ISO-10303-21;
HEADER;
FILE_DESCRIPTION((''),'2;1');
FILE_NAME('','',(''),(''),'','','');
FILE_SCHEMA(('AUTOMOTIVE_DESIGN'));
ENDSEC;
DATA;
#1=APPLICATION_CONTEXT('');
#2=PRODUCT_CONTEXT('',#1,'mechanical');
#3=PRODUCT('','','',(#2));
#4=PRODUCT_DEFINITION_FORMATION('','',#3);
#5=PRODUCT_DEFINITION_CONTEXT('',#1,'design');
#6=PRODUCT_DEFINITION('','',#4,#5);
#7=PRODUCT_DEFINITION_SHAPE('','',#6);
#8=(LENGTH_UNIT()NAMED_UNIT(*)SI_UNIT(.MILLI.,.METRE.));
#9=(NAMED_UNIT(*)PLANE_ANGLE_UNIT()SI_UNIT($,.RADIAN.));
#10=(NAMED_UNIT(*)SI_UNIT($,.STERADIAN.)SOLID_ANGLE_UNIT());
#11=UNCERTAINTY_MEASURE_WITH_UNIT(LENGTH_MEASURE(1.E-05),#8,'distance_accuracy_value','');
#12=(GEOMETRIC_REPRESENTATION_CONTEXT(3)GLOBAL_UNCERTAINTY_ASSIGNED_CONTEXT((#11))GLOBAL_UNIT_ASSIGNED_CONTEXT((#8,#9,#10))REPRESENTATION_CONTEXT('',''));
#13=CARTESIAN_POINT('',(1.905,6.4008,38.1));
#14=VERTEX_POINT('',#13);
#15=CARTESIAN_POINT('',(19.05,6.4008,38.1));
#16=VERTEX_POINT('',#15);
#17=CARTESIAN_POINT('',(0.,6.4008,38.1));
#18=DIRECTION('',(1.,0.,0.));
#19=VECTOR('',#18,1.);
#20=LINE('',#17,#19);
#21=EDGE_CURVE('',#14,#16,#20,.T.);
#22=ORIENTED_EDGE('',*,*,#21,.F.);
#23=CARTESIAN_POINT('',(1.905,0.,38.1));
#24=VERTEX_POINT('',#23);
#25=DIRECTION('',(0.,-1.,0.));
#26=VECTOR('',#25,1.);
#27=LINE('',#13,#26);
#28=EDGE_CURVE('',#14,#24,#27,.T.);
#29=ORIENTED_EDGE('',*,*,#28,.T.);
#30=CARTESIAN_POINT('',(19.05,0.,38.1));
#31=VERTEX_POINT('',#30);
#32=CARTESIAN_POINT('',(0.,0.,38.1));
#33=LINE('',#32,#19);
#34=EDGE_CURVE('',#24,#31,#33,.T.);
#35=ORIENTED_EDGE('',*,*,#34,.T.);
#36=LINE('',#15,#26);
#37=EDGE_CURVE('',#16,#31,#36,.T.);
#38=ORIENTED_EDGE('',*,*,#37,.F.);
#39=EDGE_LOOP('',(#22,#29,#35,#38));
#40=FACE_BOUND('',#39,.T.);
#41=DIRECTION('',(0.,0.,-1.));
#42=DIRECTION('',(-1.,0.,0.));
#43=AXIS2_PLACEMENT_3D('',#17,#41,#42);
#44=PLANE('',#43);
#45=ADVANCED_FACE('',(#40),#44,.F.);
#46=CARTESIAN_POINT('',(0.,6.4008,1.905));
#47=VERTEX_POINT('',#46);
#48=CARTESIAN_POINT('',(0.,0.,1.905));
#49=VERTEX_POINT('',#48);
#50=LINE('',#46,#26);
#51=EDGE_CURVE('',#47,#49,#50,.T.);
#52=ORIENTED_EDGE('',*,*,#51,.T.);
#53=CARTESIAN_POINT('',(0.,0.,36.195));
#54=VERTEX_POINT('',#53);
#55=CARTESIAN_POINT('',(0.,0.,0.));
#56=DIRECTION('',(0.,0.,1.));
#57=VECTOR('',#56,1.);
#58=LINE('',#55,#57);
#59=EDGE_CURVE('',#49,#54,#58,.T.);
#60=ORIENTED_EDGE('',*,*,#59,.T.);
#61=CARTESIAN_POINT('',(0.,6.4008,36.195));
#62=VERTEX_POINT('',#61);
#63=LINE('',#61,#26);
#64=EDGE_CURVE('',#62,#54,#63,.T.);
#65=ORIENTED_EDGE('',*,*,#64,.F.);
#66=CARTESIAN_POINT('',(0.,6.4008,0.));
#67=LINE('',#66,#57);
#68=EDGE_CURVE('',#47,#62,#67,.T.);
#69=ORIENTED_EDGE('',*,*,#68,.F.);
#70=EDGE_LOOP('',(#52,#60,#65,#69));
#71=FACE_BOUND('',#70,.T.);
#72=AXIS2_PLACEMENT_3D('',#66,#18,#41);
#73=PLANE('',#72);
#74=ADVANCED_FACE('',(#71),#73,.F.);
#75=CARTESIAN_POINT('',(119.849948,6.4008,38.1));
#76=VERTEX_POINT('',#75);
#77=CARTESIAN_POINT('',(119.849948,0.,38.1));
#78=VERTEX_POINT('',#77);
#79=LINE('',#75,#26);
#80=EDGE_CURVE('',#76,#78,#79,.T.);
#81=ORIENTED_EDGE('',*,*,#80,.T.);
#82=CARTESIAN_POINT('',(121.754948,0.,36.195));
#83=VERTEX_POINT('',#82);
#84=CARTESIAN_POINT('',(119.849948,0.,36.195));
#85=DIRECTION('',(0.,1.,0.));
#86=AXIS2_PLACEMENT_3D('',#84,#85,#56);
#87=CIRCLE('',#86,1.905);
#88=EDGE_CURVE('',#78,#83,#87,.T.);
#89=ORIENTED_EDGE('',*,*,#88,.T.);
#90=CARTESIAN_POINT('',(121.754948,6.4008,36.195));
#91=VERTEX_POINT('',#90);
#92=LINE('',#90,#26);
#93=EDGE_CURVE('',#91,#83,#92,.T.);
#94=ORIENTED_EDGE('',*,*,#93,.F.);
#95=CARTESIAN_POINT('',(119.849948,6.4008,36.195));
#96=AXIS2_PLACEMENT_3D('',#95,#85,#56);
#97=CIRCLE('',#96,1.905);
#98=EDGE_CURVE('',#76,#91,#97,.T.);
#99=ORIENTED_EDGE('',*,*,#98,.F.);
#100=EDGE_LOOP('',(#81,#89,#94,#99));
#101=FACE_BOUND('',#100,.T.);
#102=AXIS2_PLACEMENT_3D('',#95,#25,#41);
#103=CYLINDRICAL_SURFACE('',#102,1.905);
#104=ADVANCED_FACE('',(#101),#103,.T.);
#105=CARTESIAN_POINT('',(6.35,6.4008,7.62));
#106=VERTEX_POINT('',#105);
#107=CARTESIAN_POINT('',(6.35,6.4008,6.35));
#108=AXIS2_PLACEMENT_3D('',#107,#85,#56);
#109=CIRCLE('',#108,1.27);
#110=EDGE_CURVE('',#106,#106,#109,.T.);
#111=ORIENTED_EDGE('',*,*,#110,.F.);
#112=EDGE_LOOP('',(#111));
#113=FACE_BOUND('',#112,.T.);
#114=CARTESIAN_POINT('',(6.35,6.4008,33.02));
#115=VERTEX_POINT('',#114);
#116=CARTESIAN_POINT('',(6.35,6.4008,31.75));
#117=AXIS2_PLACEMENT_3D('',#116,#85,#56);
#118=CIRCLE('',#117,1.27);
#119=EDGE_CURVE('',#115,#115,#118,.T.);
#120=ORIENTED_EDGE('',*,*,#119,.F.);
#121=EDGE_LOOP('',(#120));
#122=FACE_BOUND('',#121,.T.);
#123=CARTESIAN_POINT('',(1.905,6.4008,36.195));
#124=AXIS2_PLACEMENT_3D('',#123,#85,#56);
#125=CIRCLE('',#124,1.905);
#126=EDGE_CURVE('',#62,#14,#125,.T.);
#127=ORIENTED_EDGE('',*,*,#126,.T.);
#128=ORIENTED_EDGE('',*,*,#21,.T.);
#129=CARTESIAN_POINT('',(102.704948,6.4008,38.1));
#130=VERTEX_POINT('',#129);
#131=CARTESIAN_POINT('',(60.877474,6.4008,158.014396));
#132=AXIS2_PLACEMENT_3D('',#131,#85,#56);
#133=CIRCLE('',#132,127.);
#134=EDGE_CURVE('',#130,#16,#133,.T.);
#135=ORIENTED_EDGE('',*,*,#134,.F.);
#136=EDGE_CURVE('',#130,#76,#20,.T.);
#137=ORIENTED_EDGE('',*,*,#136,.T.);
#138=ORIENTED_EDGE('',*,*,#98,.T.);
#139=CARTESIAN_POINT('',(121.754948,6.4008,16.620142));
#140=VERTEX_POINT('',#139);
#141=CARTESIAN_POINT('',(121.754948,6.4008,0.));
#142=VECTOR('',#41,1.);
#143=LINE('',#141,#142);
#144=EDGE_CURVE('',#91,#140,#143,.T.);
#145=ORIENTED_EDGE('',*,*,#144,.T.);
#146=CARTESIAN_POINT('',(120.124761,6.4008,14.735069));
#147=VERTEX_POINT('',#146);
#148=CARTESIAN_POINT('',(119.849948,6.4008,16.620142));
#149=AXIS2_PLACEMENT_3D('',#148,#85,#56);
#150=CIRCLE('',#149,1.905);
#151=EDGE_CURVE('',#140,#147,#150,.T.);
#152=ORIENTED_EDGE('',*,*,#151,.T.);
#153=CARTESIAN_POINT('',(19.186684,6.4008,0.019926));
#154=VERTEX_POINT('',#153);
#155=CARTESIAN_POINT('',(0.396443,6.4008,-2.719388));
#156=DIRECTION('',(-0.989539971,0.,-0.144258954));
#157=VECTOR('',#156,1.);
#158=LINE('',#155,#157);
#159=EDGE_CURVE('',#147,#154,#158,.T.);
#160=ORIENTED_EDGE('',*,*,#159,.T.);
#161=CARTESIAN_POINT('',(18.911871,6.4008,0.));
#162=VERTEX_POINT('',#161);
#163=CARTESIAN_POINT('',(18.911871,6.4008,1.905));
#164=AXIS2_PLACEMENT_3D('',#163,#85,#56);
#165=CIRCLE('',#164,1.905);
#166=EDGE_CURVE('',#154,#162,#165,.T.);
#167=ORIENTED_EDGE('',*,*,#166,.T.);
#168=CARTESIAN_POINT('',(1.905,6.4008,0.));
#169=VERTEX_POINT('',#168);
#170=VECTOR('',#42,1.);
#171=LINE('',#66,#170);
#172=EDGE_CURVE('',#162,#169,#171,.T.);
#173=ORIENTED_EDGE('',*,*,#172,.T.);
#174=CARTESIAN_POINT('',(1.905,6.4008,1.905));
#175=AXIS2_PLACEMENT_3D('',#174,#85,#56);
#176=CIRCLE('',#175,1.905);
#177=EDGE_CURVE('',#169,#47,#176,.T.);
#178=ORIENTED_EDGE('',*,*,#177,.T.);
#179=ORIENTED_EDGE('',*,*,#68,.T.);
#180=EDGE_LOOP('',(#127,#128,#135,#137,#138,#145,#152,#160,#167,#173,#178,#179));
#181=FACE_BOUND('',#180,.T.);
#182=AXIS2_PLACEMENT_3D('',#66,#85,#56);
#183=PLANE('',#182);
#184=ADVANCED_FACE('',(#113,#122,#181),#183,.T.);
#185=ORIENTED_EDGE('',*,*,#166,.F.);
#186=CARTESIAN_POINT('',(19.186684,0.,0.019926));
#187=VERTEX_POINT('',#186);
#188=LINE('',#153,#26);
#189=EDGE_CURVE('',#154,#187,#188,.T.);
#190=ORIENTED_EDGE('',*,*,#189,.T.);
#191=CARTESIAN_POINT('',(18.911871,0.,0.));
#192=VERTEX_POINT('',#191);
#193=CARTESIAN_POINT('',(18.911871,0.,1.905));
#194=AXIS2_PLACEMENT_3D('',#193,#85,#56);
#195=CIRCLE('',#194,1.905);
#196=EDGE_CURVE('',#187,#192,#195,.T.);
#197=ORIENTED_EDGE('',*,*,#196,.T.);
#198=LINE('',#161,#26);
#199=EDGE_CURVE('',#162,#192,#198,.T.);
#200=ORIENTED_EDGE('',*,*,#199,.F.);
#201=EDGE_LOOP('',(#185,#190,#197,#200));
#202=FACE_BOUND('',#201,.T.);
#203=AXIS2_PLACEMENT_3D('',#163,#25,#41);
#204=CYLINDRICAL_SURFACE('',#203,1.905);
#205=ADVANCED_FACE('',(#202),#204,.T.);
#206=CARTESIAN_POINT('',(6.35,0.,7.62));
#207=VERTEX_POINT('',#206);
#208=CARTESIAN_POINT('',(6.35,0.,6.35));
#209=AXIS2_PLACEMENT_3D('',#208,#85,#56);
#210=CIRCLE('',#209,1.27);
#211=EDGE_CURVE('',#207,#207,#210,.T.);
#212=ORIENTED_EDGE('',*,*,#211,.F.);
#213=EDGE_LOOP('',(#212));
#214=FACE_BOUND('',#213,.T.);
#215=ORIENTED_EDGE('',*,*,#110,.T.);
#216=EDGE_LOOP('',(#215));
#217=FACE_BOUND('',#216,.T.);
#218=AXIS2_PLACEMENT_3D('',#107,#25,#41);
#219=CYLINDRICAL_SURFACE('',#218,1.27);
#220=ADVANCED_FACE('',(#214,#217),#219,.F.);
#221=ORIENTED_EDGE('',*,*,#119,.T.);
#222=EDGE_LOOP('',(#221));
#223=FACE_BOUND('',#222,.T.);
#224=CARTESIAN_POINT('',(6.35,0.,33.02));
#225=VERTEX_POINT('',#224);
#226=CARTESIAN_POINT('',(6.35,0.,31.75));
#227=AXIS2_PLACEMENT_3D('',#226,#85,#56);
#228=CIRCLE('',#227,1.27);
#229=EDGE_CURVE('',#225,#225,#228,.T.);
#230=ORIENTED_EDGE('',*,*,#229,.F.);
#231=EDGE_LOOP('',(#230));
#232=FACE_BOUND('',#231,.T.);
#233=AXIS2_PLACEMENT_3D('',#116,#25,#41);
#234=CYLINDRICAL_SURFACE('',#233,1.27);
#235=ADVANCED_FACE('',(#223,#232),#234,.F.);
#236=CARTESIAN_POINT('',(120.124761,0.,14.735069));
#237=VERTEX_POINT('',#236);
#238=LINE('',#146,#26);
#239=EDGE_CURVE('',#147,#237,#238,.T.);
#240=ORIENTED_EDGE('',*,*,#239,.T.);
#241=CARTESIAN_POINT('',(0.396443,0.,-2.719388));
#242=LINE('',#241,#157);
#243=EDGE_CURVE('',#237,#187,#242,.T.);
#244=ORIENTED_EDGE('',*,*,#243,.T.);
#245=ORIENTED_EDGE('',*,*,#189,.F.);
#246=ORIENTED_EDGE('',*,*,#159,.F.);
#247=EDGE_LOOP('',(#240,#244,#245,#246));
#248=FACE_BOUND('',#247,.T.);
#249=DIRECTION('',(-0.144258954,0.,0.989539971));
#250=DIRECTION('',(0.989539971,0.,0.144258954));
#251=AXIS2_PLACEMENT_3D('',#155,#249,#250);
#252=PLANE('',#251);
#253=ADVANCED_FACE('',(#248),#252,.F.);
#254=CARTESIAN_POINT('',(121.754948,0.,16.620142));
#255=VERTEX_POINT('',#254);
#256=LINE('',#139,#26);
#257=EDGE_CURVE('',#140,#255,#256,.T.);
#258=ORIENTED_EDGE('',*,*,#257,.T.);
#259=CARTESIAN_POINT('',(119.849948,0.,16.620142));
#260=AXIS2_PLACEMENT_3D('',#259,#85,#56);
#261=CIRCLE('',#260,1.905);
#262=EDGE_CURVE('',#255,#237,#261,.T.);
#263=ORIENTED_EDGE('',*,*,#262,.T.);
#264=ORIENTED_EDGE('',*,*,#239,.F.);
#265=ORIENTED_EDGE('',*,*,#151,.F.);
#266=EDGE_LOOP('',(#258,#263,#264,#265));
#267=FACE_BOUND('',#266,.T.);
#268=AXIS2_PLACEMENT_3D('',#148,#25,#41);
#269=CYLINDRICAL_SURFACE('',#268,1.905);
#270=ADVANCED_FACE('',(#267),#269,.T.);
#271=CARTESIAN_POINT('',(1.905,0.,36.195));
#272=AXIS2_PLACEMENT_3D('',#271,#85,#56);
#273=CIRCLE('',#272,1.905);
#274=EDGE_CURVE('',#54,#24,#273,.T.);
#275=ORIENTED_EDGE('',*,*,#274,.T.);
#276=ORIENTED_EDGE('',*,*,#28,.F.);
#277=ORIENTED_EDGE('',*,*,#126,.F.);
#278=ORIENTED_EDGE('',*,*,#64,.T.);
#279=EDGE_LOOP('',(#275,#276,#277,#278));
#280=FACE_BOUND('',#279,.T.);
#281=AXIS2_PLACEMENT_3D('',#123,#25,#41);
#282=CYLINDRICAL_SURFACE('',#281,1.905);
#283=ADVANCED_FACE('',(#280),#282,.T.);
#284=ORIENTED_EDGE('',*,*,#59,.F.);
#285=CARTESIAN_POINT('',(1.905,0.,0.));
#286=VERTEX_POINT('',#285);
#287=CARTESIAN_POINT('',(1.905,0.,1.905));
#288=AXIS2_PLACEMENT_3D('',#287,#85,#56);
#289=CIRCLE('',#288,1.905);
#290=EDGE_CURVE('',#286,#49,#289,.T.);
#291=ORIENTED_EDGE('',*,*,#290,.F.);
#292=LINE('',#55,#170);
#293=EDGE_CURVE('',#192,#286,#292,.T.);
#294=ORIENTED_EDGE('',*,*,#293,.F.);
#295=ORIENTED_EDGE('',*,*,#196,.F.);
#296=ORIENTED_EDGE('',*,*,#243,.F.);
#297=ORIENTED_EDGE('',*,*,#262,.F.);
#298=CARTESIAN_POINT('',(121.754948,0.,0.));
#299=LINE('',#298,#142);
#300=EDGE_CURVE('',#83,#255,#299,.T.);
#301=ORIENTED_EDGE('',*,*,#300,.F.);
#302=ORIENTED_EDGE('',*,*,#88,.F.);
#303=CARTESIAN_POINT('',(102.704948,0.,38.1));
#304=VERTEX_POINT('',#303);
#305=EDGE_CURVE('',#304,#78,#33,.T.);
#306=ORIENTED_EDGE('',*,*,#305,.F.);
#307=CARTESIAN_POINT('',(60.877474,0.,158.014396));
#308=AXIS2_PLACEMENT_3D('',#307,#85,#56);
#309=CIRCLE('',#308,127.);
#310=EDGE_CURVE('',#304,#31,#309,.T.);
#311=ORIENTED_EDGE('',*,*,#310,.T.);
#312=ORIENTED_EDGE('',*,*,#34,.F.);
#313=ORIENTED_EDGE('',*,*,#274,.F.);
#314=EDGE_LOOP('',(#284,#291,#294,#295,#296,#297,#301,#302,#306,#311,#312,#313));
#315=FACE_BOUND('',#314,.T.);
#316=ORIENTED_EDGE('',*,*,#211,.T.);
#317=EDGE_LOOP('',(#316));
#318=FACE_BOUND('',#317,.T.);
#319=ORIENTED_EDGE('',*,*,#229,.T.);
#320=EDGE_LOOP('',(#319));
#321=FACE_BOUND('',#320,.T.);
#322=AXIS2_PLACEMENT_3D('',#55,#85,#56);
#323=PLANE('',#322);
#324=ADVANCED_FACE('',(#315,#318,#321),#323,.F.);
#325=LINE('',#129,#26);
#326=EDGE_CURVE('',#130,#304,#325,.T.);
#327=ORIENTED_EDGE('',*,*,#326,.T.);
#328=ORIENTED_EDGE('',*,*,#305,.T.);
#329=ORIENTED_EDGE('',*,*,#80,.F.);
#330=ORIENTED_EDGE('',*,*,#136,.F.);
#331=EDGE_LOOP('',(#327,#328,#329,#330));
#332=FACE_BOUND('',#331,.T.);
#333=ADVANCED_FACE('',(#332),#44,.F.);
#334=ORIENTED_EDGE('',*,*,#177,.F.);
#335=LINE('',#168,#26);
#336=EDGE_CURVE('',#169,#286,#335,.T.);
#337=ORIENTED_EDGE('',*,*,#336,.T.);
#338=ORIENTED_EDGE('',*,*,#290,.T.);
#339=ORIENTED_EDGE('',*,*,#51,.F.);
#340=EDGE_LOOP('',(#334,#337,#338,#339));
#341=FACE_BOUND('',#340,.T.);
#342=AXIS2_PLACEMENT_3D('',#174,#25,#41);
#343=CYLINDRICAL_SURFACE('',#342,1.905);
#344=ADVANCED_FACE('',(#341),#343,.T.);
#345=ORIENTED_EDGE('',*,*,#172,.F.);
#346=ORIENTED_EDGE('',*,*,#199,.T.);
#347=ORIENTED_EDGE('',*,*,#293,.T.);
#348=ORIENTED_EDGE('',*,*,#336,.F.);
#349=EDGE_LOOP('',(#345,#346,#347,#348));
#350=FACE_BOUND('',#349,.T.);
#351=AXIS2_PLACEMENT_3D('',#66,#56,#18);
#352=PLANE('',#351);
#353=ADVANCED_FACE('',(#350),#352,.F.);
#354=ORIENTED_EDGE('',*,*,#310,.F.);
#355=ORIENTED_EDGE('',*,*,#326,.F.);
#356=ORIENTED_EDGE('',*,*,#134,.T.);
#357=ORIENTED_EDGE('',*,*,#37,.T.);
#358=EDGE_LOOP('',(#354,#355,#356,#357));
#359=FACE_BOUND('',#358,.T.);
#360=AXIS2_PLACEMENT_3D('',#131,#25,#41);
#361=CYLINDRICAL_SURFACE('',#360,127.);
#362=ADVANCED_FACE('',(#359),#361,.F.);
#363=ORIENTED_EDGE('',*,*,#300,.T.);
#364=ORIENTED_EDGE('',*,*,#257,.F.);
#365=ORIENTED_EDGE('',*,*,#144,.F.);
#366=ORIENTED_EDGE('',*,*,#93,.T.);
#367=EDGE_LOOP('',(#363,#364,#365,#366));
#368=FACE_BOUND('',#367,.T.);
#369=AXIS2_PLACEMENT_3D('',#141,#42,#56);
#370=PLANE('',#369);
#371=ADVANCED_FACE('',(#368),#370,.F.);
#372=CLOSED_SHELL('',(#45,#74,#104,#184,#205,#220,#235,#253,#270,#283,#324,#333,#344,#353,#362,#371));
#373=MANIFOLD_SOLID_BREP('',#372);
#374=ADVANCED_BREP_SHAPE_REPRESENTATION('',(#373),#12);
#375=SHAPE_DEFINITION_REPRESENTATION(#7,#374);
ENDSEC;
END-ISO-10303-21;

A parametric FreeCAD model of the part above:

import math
import FreeCAD as App
import Part
import Sketcher

V = App.Vector
Q = App.Units.Quantity

doc = App.newDocument("Part")
body = doc.addObject("PartDesign::Body", "Body")

sketch1 = doc.addObject("Sketcher::SketchObject", "Sketch")
body.addObject(sketch1)
sketch1.AttachmentSupport = (doc.XZ_Plane, [""])
sketch1.MapMode = "FlatFace"
sketch1.addGeometry([
    Part.LineSegment(V(120.124761, 14.735069, 0), V(19.186684, 0.019926, 0)),
    Part.ArcOfCircle(Part.Circle(V(18.911871, 1.905, 0), V(0, 0, 1), 1.905), math.radians(-90), math.radians(-81.705631)),
    Part.LineSegment(V(18.911871, 0, 0), V(1.905, 0, 0)),
    Part.ArcOfCircle(Part.Circle(V(1.905, 1.905, 0), V(0, 0, 1), 1.905), math.radians(-180), math.radians(-90)),
    Part.LineSegment(V(0, 1.905, 0), V(0, 36.195, 0)),
    Part.ArcOfCircle(Part.Circle(V(1.905, 36.195, 0), V(0, 0, 1), 1.905), math.radians(90), math.radians(180)),
    Part.LineSegment(V(1.905, 38.1, 0), V(19.05, 38.1, 0)),
    Part.ArcOfCircle(Part.Circle(V(60.877474, 158.014396, 0), V(0, 0, 1), 127), math.radians(-109.229339), math.radians(-70.770661)),
    Part.LineSegment(V(102.704948, 38.1, 0), V(119.849948, 38.1, 0)),
    Part.ArcOfCircle(Part.Circle(V(119.849948, 36.195, 0), V(0, 0, 1), 1.905), math.radians(0), math.radians(90)),
    Part.LineSegment(V(121.754948, 36.195, 0), V(121.754948, 16.620142, 0)),
    Part.ArcOfCircle(Part.Circle(V(119.849948, 16.620142, 0), V(0, 0, 1), 1.905), math.radians(-81.705631), math.radians(0)),
    Part.Circle(V(6.35, 31.75, 0), V(0, 0, 1), 1.27),
    Part.Circle(V(6.35, 6.35, 0), V(0, 0, 1), 1.27),
], False)
sketch1.addConstraint([
    Sketcher.Constraint("Tangent", 0, 2, 1, 2),
    Sketcher.Constraint("Tangent", 1, 1, 2, 1),
    Sketcher.Constraint("Tangent", 2, 2, 3, 2),
    Sketcher.Constraint("Tangent", 3, 1, 4, 1),
    Sketcher.Constraint("Tangent", 4, 2, 5, 2),
    Sketcher.Constraint("Tangent", 5, 1, 6, 1),
    Sketcher.Constraint("Coincident", 6, 2, 7, 1),
    Sketcher.Constraint("Coincident", 7, 2, 8, 1),
    Sketcher.Constraint("Tangent", 8, 2, 9, 2),
    Sketcher.Constraint("Tangent", 9, 1, 10, 1),
    Sketcher.Constraint("Tangent", 10, 2, 11, 2),
    Sketcher.Constraint("Tangent", 11, 1, 0, 1),
    Sketcher.Constraint("Horizontal", 2),
    Sketcher.Constraint("Vertical", 4),
    Sketcher.Constraint("Horizontal", 6),
    Sketcher.Constraint("Horizontal", 8),
    Sketcher.Constraint("Vertical", 10),
    Sketcher.Constraint("Equal", 1, 3),
    Sketcher.Constraint("Equal", 3, 5),
    Sketcher.Constraint("Equal", 5, 9),
    Sketcher.Constraint("Equal", 9, 11),
    Sketcher.Constraint("Equal", 12, 13),
    Sketcher.Constraint("PointOnObject", 1, 1, -1),
    Sketcher.Constraint("PointOnObject", 3, 1, -2),
    Sketcher.Constraint("Horizontal", 5, 3, 9, 3),
    Sketcher.Constraint("Vertical", 12, 3, 13, 3),
    Sketcher.Constraint("Equal", 6, 8),
    Sketcher.Constraint("Radius", 7, Q("5 in")),
    Sketcher.Constraint("Diameter", 12, Q("0.1 in")),
    Sketcher.Constraint("Radius", 1, Q("0.075 in")),
    Sketcher.Constraint("DistanceY", 13, 3, 12, 3, Q("1 in")),
    Sketcher.Constraint("DistanceY", 4, 1, 4, 2, Q("1.35 in")),
    Sketcher.Constraint("DistanceX", 12, 3, 6, 2, Q("0.5 in")),
    Sketcher.Constraint("DistanceX", 6, 1, 6, 2, Q("0.675 in")),
    Sketcher.Constraint("DistanceY", -1, 1, 12, 3, Q("1.25 in")),
    Sketcher.Constraint("DistanceX", 2, 2, 2, 1, 17.006871),
    Sketcher.Constraint("DistanceY", 10, 2, 10, 1, 19.574858),
    Sketcher.Constraint("DistanceX", -1, 1, 11, 1, 120.124761),
])
pad1 = doc.addObject("PartDesign::Pad", "Pad")
body.addObject(pad1)
pad1.Profile = sketch1
pad1.Length = Q("0.252 in")
pad1.Reversed = True

doc.recompute()
